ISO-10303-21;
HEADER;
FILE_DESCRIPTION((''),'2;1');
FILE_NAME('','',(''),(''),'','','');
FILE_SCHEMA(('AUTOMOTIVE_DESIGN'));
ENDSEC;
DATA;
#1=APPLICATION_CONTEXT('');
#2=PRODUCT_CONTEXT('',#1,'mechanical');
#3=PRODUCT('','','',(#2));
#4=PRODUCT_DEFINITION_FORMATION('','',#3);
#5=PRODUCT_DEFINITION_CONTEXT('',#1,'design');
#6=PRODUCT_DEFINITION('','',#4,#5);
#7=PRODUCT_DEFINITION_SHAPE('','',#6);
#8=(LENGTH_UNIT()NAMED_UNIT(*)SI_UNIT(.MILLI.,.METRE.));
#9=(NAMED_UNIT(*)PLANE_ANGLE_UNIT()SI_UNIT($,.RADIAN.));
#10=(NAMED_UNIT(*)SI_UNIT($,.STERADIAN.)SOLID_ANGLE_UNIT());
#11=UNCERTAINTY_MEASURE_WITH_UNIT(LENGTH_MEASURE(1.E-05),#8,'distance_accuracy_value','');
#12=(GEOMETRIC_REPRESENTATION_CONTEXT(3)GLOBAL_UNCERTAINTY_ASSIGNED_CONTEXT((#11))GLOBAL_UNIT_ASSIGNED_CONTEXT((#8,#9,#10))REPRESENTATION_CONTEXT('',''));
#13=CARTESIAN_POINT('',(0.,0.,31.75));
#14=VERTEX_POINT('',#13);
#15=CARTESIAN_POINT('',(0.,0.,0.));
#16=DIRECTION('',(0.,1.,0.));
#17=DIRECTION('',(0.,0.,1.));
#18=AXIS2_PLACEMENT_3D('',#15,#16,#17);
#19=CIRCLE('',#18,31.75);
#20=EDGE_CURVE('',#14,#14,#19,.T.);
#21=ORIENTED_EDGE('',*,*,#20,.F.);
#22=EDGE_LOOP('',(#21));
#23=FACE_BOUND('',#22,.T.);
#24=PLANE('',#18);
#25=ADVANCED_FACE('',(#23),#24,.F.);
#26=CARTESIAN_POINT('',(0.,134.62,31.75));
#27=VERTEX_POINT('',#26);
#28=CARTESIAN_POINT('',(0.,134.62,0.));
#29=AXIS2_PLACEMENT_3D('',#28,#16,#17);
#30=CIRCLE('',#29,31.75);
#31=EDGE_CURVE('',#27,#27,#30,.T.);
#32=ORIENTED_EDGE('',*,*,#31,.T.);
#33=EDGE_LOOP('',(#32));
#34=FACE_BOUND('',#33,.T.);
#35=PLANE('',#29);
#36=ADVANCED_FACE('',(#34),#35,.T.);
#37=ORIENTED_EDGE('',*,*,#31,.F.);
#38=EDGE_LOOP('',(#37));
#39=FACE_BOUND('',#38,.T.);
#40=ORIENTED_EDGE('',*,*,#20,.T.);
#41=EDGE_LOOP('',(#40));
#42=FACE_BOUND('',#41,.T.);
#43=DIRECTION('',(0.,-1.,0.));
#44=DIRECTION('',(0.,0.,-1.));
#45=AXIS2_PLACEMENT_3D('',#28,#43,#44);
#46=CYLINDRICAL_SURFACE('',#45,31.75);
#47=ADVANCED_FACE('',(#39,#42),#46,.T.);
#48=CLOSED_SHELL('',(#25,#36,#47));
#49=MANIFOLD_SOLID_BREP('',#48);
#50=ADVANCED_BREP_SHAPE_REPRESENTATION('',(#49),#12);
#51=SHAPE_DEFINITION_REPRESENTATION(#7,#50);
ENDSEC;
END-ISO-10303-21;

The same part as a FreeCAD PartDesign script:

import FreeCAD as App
import Part
import Sketcher
Q = App.Units.Quantity

doc = App.newDocument("Part")
body = doc.addObject("PartDesign::Body", "Body")

# Sketch on XZ plane
sketch1 = doc.addObject("Sketcher::SketchObject", "Sketch")
body.addObject(sketch1)
sketch1.AttachmentSupport = (doc.XZ_Plane, [""])
sketch1.MapMode = "FlatFace"
sketch1.addGeometry(Part.Circle(App.Vector(0, 0, 0), App.Vector(0, 0, 1), 32), False)
sketch1.addConstraint([
    Sketcher.Constraint("Coincident", 0, 3, -1, 1),
    Sketcher.Constraint("Diameter", 0, Q("2.5 in")),
])
pad1 = doc.addObject("PartDesign::Pad", "Pad")
body.addObject(pad1)
pad1.Profile = sketch1
pad1.Length = Q("5.3 in")
pad1.Reversed = True

doc.recompute()
